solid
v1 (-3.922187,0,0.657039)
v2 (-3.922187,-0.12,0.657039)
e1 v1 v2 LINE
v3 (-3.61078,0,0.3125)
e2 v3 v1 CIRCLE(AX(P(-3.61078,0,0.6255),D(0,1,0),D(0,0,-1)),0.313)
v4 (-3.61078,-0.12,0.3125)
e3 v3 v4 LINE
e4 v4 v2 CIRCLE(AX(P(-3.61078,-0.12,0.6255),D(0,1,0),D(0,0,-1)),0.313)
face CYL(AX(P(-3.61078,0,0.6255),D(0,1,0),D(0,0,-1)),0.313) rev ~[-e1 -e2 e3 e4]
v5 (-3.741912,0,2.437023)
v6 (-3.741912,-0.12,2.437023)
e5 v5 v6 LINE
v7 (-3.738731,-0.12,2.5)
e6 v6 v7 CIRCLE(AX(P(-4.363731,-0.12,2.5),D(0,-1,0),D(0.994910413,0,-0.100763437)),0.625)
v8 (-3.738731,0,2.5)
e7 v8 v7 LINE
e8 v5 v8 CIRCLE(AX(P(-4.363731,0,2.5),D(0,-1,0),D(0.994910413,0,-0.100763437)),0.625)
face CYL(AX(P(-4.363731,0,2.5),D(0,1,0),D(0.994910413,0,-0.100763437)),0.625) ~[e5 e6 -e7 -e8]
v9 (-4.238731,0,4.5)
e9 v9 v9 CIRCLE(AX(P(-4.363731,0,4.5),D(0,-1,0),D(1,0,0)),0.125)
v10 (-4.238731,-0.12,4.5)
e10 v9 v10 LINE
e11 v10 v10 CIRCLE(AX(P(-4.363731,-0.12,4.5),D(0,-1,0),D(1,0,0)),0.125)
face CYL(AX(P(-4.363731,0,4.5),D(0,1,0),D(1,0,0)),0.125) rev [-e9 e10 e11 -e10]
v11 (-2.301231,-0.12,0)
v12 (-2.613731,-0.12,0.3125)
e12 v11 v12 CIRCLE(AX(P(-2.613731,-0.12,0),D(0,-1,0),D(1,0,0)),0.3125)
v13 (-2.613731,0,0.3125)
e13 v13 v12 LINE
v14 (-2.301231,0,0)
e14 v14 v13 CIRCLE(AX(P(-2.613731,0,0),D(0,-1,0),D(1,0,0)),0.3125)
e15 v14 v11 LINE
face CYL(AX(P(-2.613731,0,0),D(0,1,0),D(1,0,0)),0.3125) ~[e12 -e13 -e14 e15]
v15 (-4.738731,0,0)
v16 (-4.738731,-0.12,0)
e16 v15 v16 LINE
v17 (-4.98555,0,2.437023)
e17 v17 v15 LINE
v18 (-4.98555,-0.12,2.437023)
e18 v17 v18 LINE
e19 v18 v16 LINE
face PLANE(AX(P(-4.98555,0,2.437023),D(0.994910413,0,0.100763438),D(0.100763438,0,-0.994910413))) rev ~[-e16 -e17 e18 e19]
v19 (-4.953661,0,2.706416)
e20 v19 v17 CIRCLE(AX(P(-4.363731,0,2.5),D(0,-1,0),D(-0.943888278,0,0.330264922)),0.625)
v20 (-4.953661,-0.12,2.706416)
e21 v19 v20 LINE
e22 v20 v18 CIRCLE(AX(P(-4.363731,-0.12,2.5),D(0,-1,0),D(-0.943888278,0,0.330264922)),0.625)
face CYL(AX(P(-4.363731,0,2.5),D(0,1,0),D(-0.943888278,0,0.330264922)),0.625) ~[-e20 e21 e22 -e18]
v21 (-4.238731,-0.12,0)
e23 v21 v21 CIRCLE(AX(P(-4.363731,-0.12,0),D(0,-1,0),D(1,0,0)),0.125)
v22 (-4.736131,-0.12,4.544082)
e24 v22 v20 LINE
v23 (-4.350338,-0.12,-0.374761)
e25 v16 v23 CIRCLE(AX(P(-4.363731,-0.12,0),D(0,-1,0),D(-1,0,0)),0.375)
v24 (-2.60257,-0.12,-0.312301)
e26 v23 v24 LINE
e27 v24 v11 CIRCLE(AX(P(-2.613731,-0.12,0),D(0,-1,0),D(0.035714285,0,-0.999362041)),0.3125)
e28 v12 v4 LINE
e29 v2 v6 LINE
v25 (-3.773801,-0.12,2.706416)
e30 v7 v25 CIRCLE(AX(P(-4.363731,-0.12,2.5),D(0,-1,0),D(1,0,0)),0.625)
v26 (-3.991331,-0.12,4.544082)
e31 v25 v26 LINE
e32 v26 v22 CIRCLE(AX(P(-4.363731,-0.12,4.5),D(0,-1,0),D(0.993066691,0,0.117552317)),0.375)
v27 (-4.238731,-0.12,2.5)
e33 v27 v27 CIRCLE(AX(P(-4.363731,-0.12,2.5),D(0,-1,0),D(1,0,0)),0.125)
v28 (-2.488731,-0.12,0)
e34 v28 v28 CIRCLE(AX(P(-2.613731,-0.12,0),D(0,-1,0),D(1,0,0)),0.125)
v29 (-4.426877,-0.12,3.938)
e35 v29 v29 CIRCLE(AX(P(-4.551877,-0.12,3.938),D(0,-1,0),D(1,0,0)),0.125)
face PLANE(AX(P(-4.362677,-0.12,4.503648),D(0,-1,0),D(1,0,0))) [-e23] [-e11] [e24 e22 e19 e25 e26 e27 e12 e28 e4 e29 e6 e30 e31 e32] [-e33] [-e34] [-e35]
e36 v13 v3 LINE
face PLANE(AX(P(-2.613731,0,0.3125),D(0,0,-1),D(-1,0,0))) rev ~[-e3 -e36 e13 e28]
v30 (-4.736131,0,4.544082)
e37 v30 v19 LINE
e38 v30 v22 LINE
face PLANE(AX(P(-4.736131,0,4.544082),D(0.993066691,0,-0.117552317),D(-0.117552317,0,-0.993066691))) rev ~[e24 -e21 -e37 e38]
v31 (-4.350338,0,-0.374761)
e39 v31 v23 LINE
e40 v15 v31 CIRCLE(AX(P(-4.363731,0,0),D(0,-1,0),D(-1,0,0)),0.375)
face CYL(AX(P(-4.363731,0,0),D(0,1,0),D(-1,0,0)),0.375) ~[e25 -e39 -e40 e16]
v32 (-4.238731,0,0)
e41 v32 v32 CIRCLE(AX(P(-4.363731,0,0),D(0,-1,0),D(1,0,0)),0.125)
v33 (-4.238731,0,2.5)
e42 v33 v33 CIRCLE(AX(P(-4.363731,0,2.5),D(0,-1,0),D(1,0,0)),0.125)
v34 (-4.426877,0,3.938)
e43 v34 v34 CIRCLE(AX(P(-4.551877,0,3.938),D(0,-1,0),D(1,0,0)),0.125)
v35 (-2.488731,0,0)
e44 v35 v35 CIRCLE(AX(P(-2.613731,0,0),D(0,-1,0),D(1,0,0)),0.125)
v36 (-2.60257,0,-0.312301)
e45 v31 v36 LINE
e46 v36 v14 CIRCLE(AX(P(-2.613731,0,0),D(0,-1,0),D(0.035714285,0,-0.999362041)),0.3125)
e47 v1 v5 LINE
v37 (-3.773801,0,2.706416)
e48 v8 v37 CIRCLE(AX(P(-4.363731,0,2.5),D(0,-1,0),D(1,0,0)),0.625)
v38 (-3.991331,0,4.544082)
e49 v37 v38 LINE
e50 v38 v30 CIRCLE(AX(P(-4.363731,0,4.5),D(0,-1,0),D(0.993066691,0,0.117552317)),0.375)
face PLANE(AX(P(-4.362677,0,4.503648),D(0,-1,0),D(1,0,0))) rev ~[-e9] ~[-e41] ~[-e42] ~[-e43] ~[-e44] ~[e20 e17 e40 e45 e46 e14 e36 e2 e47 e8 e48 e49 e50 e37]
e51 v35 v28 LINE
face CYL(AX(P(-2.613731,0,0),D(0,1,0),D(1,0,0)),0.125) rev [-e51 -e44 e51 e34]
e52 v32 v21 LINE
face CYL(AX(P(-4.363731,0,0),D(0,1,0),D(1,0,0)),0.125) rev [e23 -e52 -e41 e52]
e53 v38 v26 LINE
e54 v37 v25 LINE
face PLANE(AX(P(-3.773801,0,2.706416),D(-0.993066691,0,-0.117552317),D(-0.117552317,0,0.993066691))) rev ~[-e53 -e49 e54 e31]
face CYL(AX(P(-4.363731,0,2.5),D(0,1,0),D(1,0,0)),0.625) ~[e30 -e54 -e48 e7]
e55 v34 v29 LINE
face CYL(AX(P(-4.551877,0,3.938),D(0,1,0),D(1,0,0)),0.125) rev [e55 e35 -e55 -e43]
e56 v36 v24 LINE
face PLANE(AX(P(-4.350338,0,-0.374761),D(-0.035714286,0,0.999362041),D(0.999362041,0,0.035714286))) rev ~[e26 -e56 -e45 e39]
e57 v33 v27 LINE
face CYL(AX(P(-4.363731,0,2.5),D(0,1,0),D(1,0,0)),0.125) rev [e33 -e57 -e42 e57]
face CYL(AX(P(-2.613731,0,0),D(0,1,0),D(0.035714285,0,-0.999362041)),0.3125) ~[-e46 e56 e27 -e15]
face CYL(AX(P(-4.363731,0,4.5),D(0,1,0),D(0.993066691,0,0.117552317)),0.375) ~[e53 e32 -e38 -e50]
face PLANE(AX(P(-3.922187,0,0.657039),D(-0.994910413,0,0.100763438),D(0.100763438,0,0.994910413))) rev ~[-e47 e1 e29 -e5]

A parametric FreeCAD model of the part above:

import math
import FreeCAD as App
import Part
import Sketcher
from FreeCAD import Vector

doc = App.newDocument("Part")
params = doc.addObject("Spreadsheet::Sheet", "Params")
for row, (alias, value) in enumerate([
    ("sketch1_diameter", "0.25 mm"),
    ("pad1_length", "0.12 mm"),
], start=1):
    params.set(f"A{row}", alias)
    params.set(f"B{row}", "=" + value)
    params.setAlias(f"B{row}", alias)

body = doc.addObject("PartDesign::Body", "Body")

sketch1 = body.newObject("Sketcher::SketchObject", "Sketch")
sketch1.AttachmentSupport = (doc.getObject("XZ_Plane"), [""])
sketch1.MapMode = "FlatFace"
sketch1.addGeometry([
    Part.ArcOfCircle(Part.Circle(Vector(-4.363731, 4.5, 0), Vector(0, 0, 1), 0.375), math.radians(6.750861), math.radians(173.249139)),
    Part.LineSegment(Vector(-4.736131, 4.544082, 0), Vector(-4.953661, 2.706416, 0)),
    Part.ArcOfCircle(Part.Circle(Vector(-4.363731, 2.5, 0), Vector(0, 0, 1), 0.625), math.radians(160.715144), math.radians(185.783134)),
    Part.LineSegment(Vector(-4.98555, 2.437023, 0), Vector(-4.738731, 0, 0)),
    Part.ArcOfCircle(Part.Circle(Vector(-4.363731, 0, 0), Vector(0, 0, 1), 0.375), math.radians(180), math.radians(272.046713)),
    Part.LineSegment(Vector(-4.350338, -0.374761, 0), Vector(-2.60257, -0.312301, 0)),
    Part.ArcOfCircle(Part.Circle(Vector(-2.613731, 0, 0), Vector(0, 0, 1), 0.3125), math.radians(-87.953287), math.radians(0)),
    Part.ArcOfCircle(Part.Circle(Vector(-2.613731, 0, 0), Vector(0, 0, 1), 0.3125), math.radians(0), math.radians(90)),
    Part.LineSegment(Vector(-2.613731, 0.3125, 0), Vector(-3.61078, 0.3125, 0)),
    Part.ArcOfCircle(Part.Circle(Vector(-3.61078, 0.6255, 0), Vector(0, 0, 1), 0.313), math.radians(174.216866), math.radians(270)),
    Part.LineSegment(Vector(-3.922187, 0.657039, 0), Vector(-3.741912, 2.437023, 0)),
    Part.ArcOfCircle(Part.Circle(Vector(-4.363731, 2.5, 0), Vector(0, 0, 1), 0.625), math.radians(-5.783134), math.radians(0)),
    Part.ArcOfCircle(Part.Circle(Vector(-4.363731, 2.5, 0), Vector(0, 0, 1), 0.625), math.radians(0), math.radians(19.284856)),
    Part.LineSegment(Vector(-3.773801, 2.706416, 0), Vector(-3.991331, 4.544082, 0)),
    Part.Circle(Vector(-4.363731, 0, 0), Vector(0, 0, 1), 0.125),
    Part.Circle(Vector(-2.613731, 0, 0), Vector(0, 0, 1), 0.125),
    Part.Circle(Vector(-4.363731, 2.5, 0), Vector(0, 0, 1), 0.125),
    Part.Circle(Vector(-4.551877, 3.938, 0), Vector(0, 0, 1), 0.125),
    Part.Circle(Vector(-4.363731, 4.5, 0), Vector(0, 0, 1), 0.125),
], False)
sketch1.addConstraint([
    Sketcher.Constraint("Tangent", 0, 2, 1, 1),
    Sketcher.Constraint("Coincident", 1, 2, 2, 1),
    Sketcher.Constraint("Tangent", 2, 2, 3, 1),
    Sketcher.Constraint("Coincident", 3, 2, 4, 1),
    Sketcher.Constraint("Tangent", 4, 2, 5, 1),
    Sketcher.Constraint("Tangent", 5, 2, 6, 1),
    Sketcher.Constraint("Tangent", 6, 2, 7, 1),
    Sketcher.Constraint("Tangent", 7, 2, 8, 1),
    Sketcher.Constraint("Tangent", 8, 2, 9, 2),
    Sketcher.Constraint("Tangent", 9, 1, 10, 1),
    Sketcher.Constraint("Tangent", 10, 2, 11, 1),
    Sketcher.Constraint("Tangent", 11, 2, 12, 1),
    Sketcher.Constraint("Coincident", 12, 2, 13, 1),
    Sketcher.Constraint("Tangent", 13, 2, 0, 1),
    Sketcher.Constraint("Horizontal", 8),
    Sketcher.Constraint("Coincident", 11, 3, 2, 3),
    Sketcher.Constraint("Coincident", 14, 3, 4, 3),
    Sketcher.Constraint("Coincident", 15, 3, 6, 3),
    Sketcher.Constraint("Coincident", 16, 3, 2, 3),
    Sketcher.Constraint("Coincident", 18, 3, 0, 3),
    Sketcher.Constraint("Equal", 0, 4),
    Sketcher.Constraint("Equal", 6, 7),
    Sketcher.Constraint("Equal", 2, 11),
    Sketcher.Constraint("Equal", 11, 12),
    Sketcher.Constraint("Equal", 14, 15),
    Sketcher.Constraint("Equal", 15, 16),
    Sketcher.Constraint("Equal", 16, 17),
    Sketcher.Constraint("Equal", 17, 18),
    Sketcher.Constraint("PointOnObject", 4, 3, -1),
    Sketcher.Constraint("PointOnObject", 6, 3, -1),
    Sketcher.Constraint("PointOnObject", 3, 2, -1),
    Sketcher.Constraint("PointOnObject", 6, 2, -1),
    Sketcher.Constraint("Horizontal", 2, 2, 10, 2),
    Sketcher.Constraint("Horizontal", 16, 3, 11, 2),
    Sketcher.Constraint("Horizontal", 1, 2, 12, 2),
    Sketcher.Constraint("Horizontal", 0, 2, 13, 2),
    Sketcher.Constraint("Vertical", 2, 3, 4, 3),
    Sketcher.Constraint("Diameter", 14, 0.25),
    Sketcher.Constraint("Radius", 0, 0.375),
    Sketcher.Constraint("Radius", 2, 0.625),
    Sketcher.Constraint("Radius", 9, 0.313),
    Sketcher.Constraint("DistanceY", 2, 3, 0, 3, 2.0),
    Sketcher.Constraint("DistanceY", -1, 1, 0, 3, 4.5),
    Sketcher.Constraint("Radius", 6, 0.3125),
    Sketcher.Constraint("DistanceX", 4, 3, 6, 3, 1.75),
    Sketcher.Constraint("DistanceY", -1, 1, 17, 3, 3.938),
    Sketcher.Constraint("DistanceX", 12, 2, -1, 1, 3.773801),
    Sketcher.Constraint("DistanceX", 0, 3, -1, 1, 4.363731),
    Sketcher.Constraint("DistanceX", 17, 3, -1, 1, 4.551877),
])
sketch1.setExpression("Constraints[37]", "Params.sketch1_diameter")
pad1 = body.newObject("PartDesign::Pad", "Pad")
pad1.Profile = sketch1
pad1.setExpression("Length", "Params.pad1_length")

doc.recompute()
